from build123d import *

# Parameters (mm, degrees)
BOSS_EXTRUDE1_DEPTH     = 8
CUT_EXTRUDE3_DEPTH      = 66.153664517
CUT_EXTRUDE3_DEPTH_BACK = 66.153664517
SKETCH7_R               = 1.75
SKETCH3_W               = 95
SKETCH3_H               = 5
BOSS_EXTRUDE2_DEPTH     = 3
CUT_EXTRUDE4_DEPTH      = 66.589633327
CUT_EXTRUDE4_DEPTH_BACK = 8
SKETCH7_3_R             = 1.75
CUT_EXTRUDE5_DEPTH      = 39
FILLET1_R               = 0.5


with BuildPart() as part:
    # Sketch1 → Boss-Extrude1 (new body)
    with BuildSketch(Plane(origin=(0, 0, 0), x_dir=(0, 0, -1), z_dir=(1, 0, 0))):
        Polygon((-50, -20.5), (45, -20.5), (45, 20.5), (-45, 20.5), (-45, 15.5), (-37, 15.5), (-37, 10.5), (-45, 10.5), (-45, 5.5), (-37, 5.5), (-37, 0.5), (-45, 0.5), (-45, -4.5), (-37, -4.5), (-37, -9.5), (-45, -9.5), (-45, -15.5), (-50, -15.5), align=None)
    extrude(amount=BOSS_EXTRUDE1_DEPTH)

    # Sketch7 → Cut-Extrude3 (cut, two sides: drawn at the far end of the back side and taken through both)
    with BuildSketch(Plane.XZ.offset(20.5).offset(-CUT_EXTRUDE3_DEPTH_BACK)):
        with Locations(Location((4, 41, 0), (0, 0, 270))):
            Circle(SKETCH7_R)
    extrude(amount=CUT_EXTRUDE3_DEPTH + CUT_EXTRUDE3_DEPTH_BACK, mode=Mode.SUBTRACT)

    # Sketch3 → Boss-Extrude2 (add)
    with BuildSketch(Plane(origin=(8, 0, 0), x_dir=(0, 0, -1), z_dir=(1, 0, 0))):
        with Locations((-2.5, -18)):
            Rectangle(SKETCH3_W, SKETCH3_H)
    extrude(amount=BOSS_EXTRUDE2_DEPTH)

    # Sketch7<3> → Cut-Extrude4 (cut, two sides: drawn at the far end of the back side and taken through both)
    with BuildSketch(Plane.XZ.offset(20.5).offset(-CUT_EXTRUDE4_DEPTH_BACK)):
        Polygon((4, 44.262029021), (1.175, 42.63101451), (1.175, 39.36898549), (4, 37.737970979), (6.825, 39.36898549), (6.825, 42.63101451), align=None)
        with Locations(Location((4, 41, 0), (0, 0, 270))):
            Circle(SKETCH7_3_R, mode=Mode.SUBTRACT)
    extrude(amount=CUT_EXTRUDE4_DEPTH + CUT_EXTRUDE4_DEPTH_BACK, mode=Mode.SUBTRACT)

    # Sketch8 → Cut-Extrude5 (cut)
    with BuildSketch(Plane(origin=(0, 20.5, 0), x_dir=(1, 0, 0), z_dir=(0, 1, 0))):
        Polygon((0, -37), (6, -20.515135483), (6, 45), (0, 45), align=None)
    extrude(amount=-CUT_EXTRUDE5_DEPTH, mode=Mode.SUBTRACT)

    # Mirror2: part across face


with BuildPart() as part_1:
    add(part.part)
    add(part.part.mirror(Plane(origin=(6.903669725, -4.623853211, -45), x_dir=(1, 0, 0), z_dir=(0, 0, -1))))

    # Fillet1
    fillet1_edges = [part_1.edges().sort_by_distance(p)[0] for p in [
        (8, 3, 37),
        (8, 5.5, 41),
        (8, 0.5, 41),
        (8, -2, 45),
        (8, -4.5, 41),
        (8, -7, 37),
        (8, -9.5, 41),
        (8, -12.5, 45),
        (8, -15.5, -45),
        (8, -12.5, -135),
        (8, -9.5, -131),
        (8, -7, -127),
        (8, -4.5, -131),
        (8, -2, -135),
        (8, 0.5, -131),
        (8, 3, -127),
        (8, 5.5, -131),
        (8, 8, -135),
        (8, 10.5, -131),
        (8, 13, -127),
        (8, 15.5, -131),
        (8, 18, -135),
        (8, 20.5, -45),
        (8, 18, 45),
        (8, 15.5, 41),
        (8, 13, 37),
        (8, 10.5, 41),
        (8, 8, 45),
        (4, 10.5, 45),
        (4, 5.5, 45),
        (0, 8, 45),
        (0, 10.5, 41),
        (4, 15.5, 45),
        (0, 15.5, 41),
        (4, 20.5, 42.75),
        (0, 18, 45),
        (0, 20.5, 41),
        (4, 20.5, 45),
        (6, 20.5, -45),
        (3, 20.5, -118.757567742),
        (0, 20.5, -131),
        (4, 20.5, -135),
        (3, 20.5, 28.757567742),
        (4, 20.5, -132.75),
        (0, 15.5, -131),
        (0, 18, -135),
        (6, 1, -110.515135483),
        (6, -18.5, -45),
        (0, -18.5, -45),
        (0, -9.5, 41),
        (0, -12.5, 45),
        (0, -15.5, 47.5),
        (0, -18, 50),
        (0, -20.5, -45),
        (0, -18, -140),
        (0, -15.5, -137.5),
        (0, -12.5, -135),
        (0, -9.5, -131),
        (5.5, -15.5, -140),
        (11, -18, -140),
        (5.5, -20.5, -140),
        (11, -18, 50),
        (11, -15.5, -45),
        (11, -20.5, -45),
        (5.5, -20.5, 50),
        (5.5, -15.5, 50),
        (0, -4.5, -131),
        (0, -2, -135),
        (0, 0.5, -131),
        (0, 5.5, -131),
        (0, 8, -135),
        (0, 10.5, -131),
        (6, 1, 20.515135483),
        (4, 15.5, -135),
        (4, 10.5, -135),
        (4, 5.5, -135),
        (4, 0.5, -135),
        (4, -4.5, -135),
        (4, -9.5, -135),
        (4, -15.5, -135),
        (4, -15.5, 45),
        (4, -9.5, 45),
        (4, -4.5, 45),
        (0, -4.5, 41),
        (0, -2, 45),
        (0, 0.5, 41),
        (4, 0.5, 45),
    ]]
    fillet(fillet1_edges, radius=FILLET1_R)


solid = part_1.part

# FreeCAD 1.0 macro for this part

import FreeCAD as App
import Part
import Sketcher

V = App.Vector
Q = App.Units.Quantity


def edges_at(feature, points):
    """Names of the edges that pass closest to the given points."""
    edges = feature.Shape.Edges
    near = lambda p: min(range(len(edges)), key=lambda i: edges[i].distToShape(Part.Vertex(*p))[0])
    return sorted({f"Edge{near(p) + 1}" for p in points})

doc = App.newDocument("Part")
body = doc.addObject("PartDesign::Body", "Body")

# Sketch on YZ plane
sketch1 = body.newObject("Sketcher::SketchObject", "Sketch")
sketch1.AttachmentSupport = (doc.getObject("YZ_Plane"), [""])
sketch1.MapMode = "FlatFace"
sketch1.addGeometry([
    Part.LineSegment(V(-20.5, 50, 0), V(-20.5, -45, 0)),  # 0
    Part.LineSegment(V(-20.5, -45, 0), V(20.5, -45, 0)),  # 1
    Part.LineSegment(V(20.5, -45, 0), V(20.5, 45, 0)),  # 2
    Part.LineSegment(V(20.5, 45, 0), V(15.5, 45, 0)),  # 3
    Part.LineSegment(V(15.5, 45, 0), V(15.5, 37, 0)),  # 4
    Part.LineSegment(V(15.5, 37, 0), V(10.5, 37, 0)),  # 5
    Part.LineSegment(V(10.5, 37, 0), V(10.5, 45, 0)),  # 6
    Part.LineSegment(V(10.5, 45, 0), V(5.5, 45, 0)),  # 7
    Part.LineSegment(V(5.5, 45, 0), V(5.5, 37, 0)),  # 8
    Part.LineSegment(V(5.5, 37, 0), V(0.5, 37, 0)),  # 9
    Part.LineSegment(V(0.5, 37, 0), V(0.5, 45, 0)),  # 10
    Part.LineSegment(V(0.5, 45, 0), V(-4.5, 45, 0)),  # 11
    Part.LineSegment(V(-4.5, 45, 0), V(-4.5, 37, 0)),  # 12
    Part.LineSegment(V(-4.5, 37, 0), V(-9.5, 37, 0)),  # 13
    Part.LineSegment(V(-9.5, 37, 0), V(-9.5, 45, 0)),  # 14
    Part.LineSegment(V(-9.5, 45, 0), V(-15.5, 45, 0)),  # 15
    Part.LineSegment(V(-15.5, 45, 0), V(-15.5, 50, 0)),  # 16
    Part.LineSegment(V(-15.5, 50, 0), V(-20.5, 50, 0)),  # 17
], False)
sketch1.addConstraint([
    Sketcher.Constraint("Coincident", 0, 2, 1, 1),
    Sketcher.Constraint("Coincident", 1, 2, 2, 1),
    Sketcher.Constraint("Coincident", 2, 2, 3, 1),
    Sketcher.Constraint("Coincident", 3, 2, 4, 1),
    Sketcher.Constraint("Coincident", 4, 2, 5, 1),
    Sketcher.Constraint("Coincident", 5, 2, 6, 1),
    Sketcher.Constraint("Coincident", 6, 2, 7, 1),
    Sketcher.Constraint("Coincident", 7, 2, 8, 1),
    Sketcher.Constraint("Coincident", 8, 2, 9, 1),
    Sketcher.Constraint("Coincident", 9, 2, 10, 1),
    Sketcher.Constraint("Coincident", 10, 2, 11, 1),
    Sketcher.Constraint("Coincident", 11, 2, 12, 1),
    Sketcher.Constraint("Coincident", 12, 2, 13, 1),
    Sketcher.Constraint("Coincident", 13, 2, 14, 1),
    Sketcher.Constraint("Coincident", 14, 2, 15, 1),
    Sketcher.Constraint("Coincident", 15, 2, 16, 1),
    Sketcher.Constraint("Coincident", 16, 2, 17, 1),
    Sketcher.Constraint("Coincident", 17, 2, 0, 1),
    Sketcher.Constraint("Vertical", 0),
    Sketcher.Constraint("Horizontal", 1),
    Sketcher.Constraint("Vertical", 2),
    Sketcher.Constraint("Horizontal", 3),
    Sketcher.Constraint("Vertical", 4),
    Sketcher.Constraint("Horizontal", 5),
    Sketcher.Constraint("Vertical", 6),
    Sketcher.Constraint("Horizontal", 7),
    Sketcher.Constraint("Vertical", 8),
    Sketcher.Constraint("Horizontal", 9),
    Sketcher.Constraint("Vertical", 10),
    Sketcher.Constraint("Horizontal", 11),
    Sketcher.Constraint("Vertical", 12),
    Sketcher.Constraint("Horizontal", 13),
    Sketcher.Constraint("Vertical", 14),
    Sketcher.Constraint("Horizontal", 15),
    Sketcher.Constraint("Vertical", 16),
    Sketcher.Constraint("Horizontal", 17),
    Sketcher.Constraint("Symmetric", 0, 2, 2, 2, -1, 1),
    Sketcher.Constraint("Symmetric", 3, 2, 15, 2, -2),
    Sketcher.Constraint("Horizontal", 3, 2, 6, 2),
    Sketcher.Constraint("Horizontal", 5, 2, 8, 2),
    Sketcher.Constraint("Horizontal", 7, 2, 10, 2),
    Sketcher.Constraint("Horizontal", 9, 2, 12, 2),
    Sketcher.Constraint("Equal", 3, 5),
    Sketcher.Constraint("Equal", 5, 7),
    Sketcher.Constraint("Equal", 7, 9),
    Sketcher.Constraint("Equal", 9, 11),
    Sketcher.Constraint("Equal", 11, 13),
    Sketcher.Constraint("Equal", 17, 16),
    Sketcher.Constraint("DistanceX", 1, 1, 1, 2, Q("41 mm")),
    Sketcher.Constraint("DistanceX", 3, 2, 3, 1, Q("5 mm")),
    Sketcher.Constraint("DistanceY", 0, 2, 0, 1, Q("95 mm")),
    Sketcher.Constraint("DistanceY", 4, 2, 4, 1, Q("8 mm")),
])
pad1 = body.newObject("PartDesign::Pad", "Pad")
pad1.Profile = sketch1
pad1.Length = 8

# Sketch on XZ plane
sketch2 = body.newObject("Sketcher::SketchObject", "Sketch001")
sketch2.AttachmentSupport = (doc.getObject("XZ_Plane"), [""])
sketch2.MapMode = "FlatFace"
sketch2.AttachmentOffset = App.Placement(V(0, 0, 20.5), App.Rotation())
sketch2.addGeometry(Part.Circle(V(4, 41, 0), V(0, 0, 1), 1.75), False)
sketch2.addConstraint([
    Sketcher.Constraint("Diameter", 0, Q("3.5 mm")),
    Sketcher.Constraint("DistanceX", -1, 1, 0, 3, Q("4 mm")),
    Sketcher.Constraint("DistanceY", -1, 1, 0, 3, Q("41 mm")),
])
pocket1 = body.newObject("PartDesign::Pocket", "Pocket")
pocket1.Profile = sketch2
pocket1.Type = "ThroughAll"
pocket1.Midplane = True

# Sketch on YZ plane
sketch3 = body.newObject("Sketcher::SketchObject", "Sketch002")
sketch3.AttachmentSupport = (doc.getObject("YZ_Plane"), [""])
sketch3.MapMode = "FlatFace"
sketch3.AttachmentOffset = App.Placement(V(0, 0, 8), App.Rotation())
sketch3.addGeometry([
    Part.LineSegment(V(-15.5, 50, 0), V(-20.5, 50, 0)),
    Part.LineSegment(V(-20.5, 50, 0), V(-20.5, -45, 0)),
    Part.LineSegment(V(-20.5, -45, 0), V(-15.5, -45, 0)),
    Part.LineSegment(V(-15.5, -45, 0), V(-15.5, 50, 0)),
], False)
sketch3.addConstraint([
    Sketcher.Constraint("Coincident", 0, 2, 1, 1),
    Sketcher.Constraint("Coincident", 1, 2, 2, 1),
    Sketcher.Constraint("Coincident", 2, 2, 3, 1),
    Sketcher.Constraint("Coincident", 3, 2, 0, 1),
    Sketcher.Constraint("Horizontal", 0),
    Sketcher.Constraint("Vertical", 1),
    Sketcher.Constraint("Horizontal", 2),
    Sketcher.Constraint("Vertical", 3),
    Sketcher.Constraint("DistanceX", 0, 2, 0, 1, Q("5 mm")),
    Sketcher.Constraint("DistanceY", 1, 2, 1, 1, Q("95 mm")),
    Sketcher.Constraint("DistanceY", -1, 1, 0, 2, Q("50 mm")),
    Sketcher.Constraint("DistanceX", 0, 2, -1, 1, Q("20.5 mm")),
])
pad2 = body.newObject("PartDesign::Pad", "Pad001")
pad2.Profile = sketch3
pad2.Length = 3

# Sketch on XZ plane
sketch4 = body.newObject("Sketcher::SketchObject", "Sketch003")
sketch4.AttachmentSupport = (doc.getObject("XZ_Plane"), [""])
sketch4.MapMode = "FlatFace"
sketch4.AttachmentOffset = App.Placement(V(0, 0, 20.5), App.Rotation())
sketch4.addGeometry([
    Part.LineSegment(V(4, 44.262029, 0), V(1.175, 42.631015, 0)),  # 0
    Part.LineSegment(V(1.175, 42.631015, 0), V(1.175, 39.368985, 0)),  # 1
    Part.LineSegment(V(1.175, 39.368985, 0), V(4, 37.737971, 0)),  # 2
    Part.LineSegment(V(4, 37.737971, 0), V(6.825, 39.368985, 0)),  # 3
    Part.LineSegment(V(6.825, 39.368985, 0), V(6.825, 42.631015, 0)),  # 4
    Part.LineSegment(V(6.825, 42.631015, 0), V(4, 44.262029, 0)),  # 5
    Part.Circle(V(4, 41, 0), V(0, 0, 1), 1.75),  # 6
], False)
sketch4.addConstraint([
    Sketcher.Constraint("Coincident", 0, 2, 1, 1),
    Sketcher.Constraint("Coincident", 1, 2, 2, 1),
    Sketcher.Constraint("Coincident", 2, 2, 3, 1),
    Sketcher.Constraint("Coincident", 3, 2, 4, 1),
    Sketcher.Constraint("Coincident", 4, 2, 5, 1),
    Sketcher.Constraint("Coincident", 5, 2, 0, 1),
    Sketcher.Constraint("Vertical", 1),
    Sketcher.Constraint("Vertical", 4),
    Sketcher.Constraint("Parallel", 0, 3),
    Sketcher.Constraint("Parallel", 2, 5),
    Sketcher.Constraint("Horizontal", 1, 2, 3, 2),
    Sketcher.Constraint("Horizontal", 0, 2, 4, 2),
    Sketcher.Constraint("Vertical", 6, 3, 2, 2),
    Sketcher.Constraint("Vertical", 2, 2, 5, 2),
    Sketcher.Constraint("Diameter", 6, Q("3.5 mm")),
    Sketcher.Constraint("Angle", 0, Q("-150 deg")),
    Sketcher.Constraint("DistanceX", -1, 1, 6, 3, Q("4 mm")),
    Sketcher.Constraint("DistanceY", -1, 1, 6, 3, Q("41 mm")),
    Sketcher.Constraint("DistanceX", 1, 2, 3, 2, Q("5.65 mm")),
    Sketcher.Constraint("DistanceY", 1, 2, 1, 1, Q("3.262029 mm")),
    Sketcher.Constraint("DistanceY", -1, 1, 2, 2, Q("37.737971 mm")),
])
pocket2 = body.newObject("PartDesign::Pocket", "Pocket001")
pocket2.Profile = sketch4
pocket2.Type = "TwoLengths"
pocket2.Length = 66.589633
pocket2.Length2 = 8
pocket2.Reversed = True

# Sketch on XZ plane
sketch5 = body.newObject("Sketcher::SketchObject", "Sketch004")
sketch5.AttachmentSupport = (doc.getObject("XZ_Plane"), [""])
sketch5.MapMode = "FlatFace"
sketch5.AttachmentOffset = App.Placement(V(0, 0, -20.5), App.Rotation())
sketch5.addGeometry([
    Part.LineSegment(V(0, 37, 0), V(6, 20.515135, 0)),
    Part.LineSegment(V(6, 20.515135, 0), V(6, -45, 0)),
    Part.LineSegment(V(6, -45, 0), V(0, -45, 0)),
    Part.LineSegment(V(0, -45, 0), V(0, 37, 0)),
], False)
sketch5.addConstraint([
    Sketcher.Constraint("Coincident", 0, 2, 1, 1),
    Sketcher.Constraint("Coincident", 1, 2, 2, 1),
    Sketcher.Constraint("Coincident", 2, 2, 3, 1),
    Sketcher.Constraint("Coincident", 3, 2, 0, 1),
    Sketcher.Constraint("Vertical", 1),
    Sketcher.Constraint("Horizontal", 2),
    Sketcher.Constraint("Vertical", 3),
    Sketcher.Constraint("PointOnObject", 2, 2, -2),
    Sketcher.Constraint("DistanceX", 2, 2, 2, 1, Q("6 mm")),
    Sketcher.Constraint("DistanceY", 3, 1, 3, 2, Q("82 mm")),
    Sketcher.Constraint("Angle", 0, Q("-70 deg")),
    Sketcher.Constraint("DistanceY", 1, 2, -1, 1, Q("45 mm")),
])
pocket3 = body.newObject("PartDesign::Pocket", "Pocket002")
pocket3.Profile = sketch5
pocket3.Length = 39
pocket3.Reversed = True
body2 = doc.addObject("PartDesign::Body", "Body001")
doc.recompute()

body2.BaseFeature = body
doc.recompute()

mirroring = doc.addObject("Part::Mirroring", "Mirroring")
mirroring.Source = body
mirroring.Base = V(6.90367, -4.623853, -45)
mirroring.Normal = V(0, 0, -1)
body3 = doc.addObject("PartDesign::Body", "Body002")
body3.BaseFeature = mirroring
boolean = body2.newObject("PartDesign::Boolean", "Boolean")
boolean.Type = "Fuse"
boolean.addObjects([body3])
doc.recompute()

fillet = body2.newObject("PartDesign::Fillet", "Fillet")
fillet.Base = (boolean, edges_at(boolean, [
    (8, 3, 37),
    (8, 5.5, 41),
    (8, 0.5, 41),
    (8, -2, 45),
    (8, -4.5, 41),
    (8, -7, 37),
    (8, -9.5, 41),
    (8, -12.5, 45),
    (8, -15.5, -45),
    (8, -12.5, -135),
    (8, -9.5, -131),
    (8, -7, -127),
    (8, -4.5, -131),
    (8, -2, -135),
    (8, 0.5, -131),
    (8, 3, -127),
    (8, 5.5, -131),
    (8, 8, -135),
    (8, 10.5, -131),
    (8, 13, -127),
    (8, 15.5, -131),
    (8, 18, -135),
    (8, 20.5, -45),
    (8, 18, 45),
    (8, 15.5, 41),
    (8, 13, 37),
    (8, 10.5, 41),
    (8, 8, 45),
    (4, 10.5, 45),
    (4, 5.5, 45),
    (0, 8, 45),
    (0, 10.5, 41),
    (4, 15.5, 45),
    (0, 15.5, 41),
    (4, 20.5, 42.75),
    (0, 18, 45),
    (0, 20.5, 41),
    (4, 20.5, 45),
    (6, 20.5, -45),
    (3, 20.5, -118.758),
    (0, 20.5, -131),
    (4, 20.5, -135),
    (3, 20.5, 28.758),
    (4, 20.5, -132.75),
    (0, 15.5, -131),
    (0, 18, -135),
    (6, 1, -110.515),
    (6, -18.5, -45),
    (0, -18.5, -45),
    (0, -9.5, 41),
    (0, -12.5, 45),
    (0, -15.5, 47.5),
    (0, -18, 50),
    (0, -20.5, -45),
    (0, -18, -140),
    (0, -15.5, -137.5),
    (0, -12.5, -135),
    (0, -9.5, -131),
    (5.5, -15.5, -140),
    (11, -18, -140),
    (5.5, -20.5, -140),
    (11, -18, 50),
    (11, -15.5, -45),
    (11, -20.5, -45),
    (5.5, -20.5, 50),
    (5.5, -15.5, 50),
    (0, -4.5, -131),
    (0, -2, -135),
    (0, 0.5, -131),
    (0, 5.5, -131),
    (0, 8, -135),
    (0, 10.5, -131),
    (6, 1, 20.515),
    (4, 15.5, -135),
    (4, 10.5, -135),
    (4, 5.5, -135),
    (4, 0.5, -135),
    (4, -4.5, -135),
    (4, -9.5, -135),
    (4, -15.5, -135),
    (4, -15.5, 45),
    (4, -9.5, 45),
    (4, -4.5, 45),
    (0, -4.5, 41),
    (0, -2, 45),
    (0, 0.5, 41),
    (4, 0.5, 45),
]))
fillet.Radius = 0.5
mirroring.Visibility = False

doc.recompute()
